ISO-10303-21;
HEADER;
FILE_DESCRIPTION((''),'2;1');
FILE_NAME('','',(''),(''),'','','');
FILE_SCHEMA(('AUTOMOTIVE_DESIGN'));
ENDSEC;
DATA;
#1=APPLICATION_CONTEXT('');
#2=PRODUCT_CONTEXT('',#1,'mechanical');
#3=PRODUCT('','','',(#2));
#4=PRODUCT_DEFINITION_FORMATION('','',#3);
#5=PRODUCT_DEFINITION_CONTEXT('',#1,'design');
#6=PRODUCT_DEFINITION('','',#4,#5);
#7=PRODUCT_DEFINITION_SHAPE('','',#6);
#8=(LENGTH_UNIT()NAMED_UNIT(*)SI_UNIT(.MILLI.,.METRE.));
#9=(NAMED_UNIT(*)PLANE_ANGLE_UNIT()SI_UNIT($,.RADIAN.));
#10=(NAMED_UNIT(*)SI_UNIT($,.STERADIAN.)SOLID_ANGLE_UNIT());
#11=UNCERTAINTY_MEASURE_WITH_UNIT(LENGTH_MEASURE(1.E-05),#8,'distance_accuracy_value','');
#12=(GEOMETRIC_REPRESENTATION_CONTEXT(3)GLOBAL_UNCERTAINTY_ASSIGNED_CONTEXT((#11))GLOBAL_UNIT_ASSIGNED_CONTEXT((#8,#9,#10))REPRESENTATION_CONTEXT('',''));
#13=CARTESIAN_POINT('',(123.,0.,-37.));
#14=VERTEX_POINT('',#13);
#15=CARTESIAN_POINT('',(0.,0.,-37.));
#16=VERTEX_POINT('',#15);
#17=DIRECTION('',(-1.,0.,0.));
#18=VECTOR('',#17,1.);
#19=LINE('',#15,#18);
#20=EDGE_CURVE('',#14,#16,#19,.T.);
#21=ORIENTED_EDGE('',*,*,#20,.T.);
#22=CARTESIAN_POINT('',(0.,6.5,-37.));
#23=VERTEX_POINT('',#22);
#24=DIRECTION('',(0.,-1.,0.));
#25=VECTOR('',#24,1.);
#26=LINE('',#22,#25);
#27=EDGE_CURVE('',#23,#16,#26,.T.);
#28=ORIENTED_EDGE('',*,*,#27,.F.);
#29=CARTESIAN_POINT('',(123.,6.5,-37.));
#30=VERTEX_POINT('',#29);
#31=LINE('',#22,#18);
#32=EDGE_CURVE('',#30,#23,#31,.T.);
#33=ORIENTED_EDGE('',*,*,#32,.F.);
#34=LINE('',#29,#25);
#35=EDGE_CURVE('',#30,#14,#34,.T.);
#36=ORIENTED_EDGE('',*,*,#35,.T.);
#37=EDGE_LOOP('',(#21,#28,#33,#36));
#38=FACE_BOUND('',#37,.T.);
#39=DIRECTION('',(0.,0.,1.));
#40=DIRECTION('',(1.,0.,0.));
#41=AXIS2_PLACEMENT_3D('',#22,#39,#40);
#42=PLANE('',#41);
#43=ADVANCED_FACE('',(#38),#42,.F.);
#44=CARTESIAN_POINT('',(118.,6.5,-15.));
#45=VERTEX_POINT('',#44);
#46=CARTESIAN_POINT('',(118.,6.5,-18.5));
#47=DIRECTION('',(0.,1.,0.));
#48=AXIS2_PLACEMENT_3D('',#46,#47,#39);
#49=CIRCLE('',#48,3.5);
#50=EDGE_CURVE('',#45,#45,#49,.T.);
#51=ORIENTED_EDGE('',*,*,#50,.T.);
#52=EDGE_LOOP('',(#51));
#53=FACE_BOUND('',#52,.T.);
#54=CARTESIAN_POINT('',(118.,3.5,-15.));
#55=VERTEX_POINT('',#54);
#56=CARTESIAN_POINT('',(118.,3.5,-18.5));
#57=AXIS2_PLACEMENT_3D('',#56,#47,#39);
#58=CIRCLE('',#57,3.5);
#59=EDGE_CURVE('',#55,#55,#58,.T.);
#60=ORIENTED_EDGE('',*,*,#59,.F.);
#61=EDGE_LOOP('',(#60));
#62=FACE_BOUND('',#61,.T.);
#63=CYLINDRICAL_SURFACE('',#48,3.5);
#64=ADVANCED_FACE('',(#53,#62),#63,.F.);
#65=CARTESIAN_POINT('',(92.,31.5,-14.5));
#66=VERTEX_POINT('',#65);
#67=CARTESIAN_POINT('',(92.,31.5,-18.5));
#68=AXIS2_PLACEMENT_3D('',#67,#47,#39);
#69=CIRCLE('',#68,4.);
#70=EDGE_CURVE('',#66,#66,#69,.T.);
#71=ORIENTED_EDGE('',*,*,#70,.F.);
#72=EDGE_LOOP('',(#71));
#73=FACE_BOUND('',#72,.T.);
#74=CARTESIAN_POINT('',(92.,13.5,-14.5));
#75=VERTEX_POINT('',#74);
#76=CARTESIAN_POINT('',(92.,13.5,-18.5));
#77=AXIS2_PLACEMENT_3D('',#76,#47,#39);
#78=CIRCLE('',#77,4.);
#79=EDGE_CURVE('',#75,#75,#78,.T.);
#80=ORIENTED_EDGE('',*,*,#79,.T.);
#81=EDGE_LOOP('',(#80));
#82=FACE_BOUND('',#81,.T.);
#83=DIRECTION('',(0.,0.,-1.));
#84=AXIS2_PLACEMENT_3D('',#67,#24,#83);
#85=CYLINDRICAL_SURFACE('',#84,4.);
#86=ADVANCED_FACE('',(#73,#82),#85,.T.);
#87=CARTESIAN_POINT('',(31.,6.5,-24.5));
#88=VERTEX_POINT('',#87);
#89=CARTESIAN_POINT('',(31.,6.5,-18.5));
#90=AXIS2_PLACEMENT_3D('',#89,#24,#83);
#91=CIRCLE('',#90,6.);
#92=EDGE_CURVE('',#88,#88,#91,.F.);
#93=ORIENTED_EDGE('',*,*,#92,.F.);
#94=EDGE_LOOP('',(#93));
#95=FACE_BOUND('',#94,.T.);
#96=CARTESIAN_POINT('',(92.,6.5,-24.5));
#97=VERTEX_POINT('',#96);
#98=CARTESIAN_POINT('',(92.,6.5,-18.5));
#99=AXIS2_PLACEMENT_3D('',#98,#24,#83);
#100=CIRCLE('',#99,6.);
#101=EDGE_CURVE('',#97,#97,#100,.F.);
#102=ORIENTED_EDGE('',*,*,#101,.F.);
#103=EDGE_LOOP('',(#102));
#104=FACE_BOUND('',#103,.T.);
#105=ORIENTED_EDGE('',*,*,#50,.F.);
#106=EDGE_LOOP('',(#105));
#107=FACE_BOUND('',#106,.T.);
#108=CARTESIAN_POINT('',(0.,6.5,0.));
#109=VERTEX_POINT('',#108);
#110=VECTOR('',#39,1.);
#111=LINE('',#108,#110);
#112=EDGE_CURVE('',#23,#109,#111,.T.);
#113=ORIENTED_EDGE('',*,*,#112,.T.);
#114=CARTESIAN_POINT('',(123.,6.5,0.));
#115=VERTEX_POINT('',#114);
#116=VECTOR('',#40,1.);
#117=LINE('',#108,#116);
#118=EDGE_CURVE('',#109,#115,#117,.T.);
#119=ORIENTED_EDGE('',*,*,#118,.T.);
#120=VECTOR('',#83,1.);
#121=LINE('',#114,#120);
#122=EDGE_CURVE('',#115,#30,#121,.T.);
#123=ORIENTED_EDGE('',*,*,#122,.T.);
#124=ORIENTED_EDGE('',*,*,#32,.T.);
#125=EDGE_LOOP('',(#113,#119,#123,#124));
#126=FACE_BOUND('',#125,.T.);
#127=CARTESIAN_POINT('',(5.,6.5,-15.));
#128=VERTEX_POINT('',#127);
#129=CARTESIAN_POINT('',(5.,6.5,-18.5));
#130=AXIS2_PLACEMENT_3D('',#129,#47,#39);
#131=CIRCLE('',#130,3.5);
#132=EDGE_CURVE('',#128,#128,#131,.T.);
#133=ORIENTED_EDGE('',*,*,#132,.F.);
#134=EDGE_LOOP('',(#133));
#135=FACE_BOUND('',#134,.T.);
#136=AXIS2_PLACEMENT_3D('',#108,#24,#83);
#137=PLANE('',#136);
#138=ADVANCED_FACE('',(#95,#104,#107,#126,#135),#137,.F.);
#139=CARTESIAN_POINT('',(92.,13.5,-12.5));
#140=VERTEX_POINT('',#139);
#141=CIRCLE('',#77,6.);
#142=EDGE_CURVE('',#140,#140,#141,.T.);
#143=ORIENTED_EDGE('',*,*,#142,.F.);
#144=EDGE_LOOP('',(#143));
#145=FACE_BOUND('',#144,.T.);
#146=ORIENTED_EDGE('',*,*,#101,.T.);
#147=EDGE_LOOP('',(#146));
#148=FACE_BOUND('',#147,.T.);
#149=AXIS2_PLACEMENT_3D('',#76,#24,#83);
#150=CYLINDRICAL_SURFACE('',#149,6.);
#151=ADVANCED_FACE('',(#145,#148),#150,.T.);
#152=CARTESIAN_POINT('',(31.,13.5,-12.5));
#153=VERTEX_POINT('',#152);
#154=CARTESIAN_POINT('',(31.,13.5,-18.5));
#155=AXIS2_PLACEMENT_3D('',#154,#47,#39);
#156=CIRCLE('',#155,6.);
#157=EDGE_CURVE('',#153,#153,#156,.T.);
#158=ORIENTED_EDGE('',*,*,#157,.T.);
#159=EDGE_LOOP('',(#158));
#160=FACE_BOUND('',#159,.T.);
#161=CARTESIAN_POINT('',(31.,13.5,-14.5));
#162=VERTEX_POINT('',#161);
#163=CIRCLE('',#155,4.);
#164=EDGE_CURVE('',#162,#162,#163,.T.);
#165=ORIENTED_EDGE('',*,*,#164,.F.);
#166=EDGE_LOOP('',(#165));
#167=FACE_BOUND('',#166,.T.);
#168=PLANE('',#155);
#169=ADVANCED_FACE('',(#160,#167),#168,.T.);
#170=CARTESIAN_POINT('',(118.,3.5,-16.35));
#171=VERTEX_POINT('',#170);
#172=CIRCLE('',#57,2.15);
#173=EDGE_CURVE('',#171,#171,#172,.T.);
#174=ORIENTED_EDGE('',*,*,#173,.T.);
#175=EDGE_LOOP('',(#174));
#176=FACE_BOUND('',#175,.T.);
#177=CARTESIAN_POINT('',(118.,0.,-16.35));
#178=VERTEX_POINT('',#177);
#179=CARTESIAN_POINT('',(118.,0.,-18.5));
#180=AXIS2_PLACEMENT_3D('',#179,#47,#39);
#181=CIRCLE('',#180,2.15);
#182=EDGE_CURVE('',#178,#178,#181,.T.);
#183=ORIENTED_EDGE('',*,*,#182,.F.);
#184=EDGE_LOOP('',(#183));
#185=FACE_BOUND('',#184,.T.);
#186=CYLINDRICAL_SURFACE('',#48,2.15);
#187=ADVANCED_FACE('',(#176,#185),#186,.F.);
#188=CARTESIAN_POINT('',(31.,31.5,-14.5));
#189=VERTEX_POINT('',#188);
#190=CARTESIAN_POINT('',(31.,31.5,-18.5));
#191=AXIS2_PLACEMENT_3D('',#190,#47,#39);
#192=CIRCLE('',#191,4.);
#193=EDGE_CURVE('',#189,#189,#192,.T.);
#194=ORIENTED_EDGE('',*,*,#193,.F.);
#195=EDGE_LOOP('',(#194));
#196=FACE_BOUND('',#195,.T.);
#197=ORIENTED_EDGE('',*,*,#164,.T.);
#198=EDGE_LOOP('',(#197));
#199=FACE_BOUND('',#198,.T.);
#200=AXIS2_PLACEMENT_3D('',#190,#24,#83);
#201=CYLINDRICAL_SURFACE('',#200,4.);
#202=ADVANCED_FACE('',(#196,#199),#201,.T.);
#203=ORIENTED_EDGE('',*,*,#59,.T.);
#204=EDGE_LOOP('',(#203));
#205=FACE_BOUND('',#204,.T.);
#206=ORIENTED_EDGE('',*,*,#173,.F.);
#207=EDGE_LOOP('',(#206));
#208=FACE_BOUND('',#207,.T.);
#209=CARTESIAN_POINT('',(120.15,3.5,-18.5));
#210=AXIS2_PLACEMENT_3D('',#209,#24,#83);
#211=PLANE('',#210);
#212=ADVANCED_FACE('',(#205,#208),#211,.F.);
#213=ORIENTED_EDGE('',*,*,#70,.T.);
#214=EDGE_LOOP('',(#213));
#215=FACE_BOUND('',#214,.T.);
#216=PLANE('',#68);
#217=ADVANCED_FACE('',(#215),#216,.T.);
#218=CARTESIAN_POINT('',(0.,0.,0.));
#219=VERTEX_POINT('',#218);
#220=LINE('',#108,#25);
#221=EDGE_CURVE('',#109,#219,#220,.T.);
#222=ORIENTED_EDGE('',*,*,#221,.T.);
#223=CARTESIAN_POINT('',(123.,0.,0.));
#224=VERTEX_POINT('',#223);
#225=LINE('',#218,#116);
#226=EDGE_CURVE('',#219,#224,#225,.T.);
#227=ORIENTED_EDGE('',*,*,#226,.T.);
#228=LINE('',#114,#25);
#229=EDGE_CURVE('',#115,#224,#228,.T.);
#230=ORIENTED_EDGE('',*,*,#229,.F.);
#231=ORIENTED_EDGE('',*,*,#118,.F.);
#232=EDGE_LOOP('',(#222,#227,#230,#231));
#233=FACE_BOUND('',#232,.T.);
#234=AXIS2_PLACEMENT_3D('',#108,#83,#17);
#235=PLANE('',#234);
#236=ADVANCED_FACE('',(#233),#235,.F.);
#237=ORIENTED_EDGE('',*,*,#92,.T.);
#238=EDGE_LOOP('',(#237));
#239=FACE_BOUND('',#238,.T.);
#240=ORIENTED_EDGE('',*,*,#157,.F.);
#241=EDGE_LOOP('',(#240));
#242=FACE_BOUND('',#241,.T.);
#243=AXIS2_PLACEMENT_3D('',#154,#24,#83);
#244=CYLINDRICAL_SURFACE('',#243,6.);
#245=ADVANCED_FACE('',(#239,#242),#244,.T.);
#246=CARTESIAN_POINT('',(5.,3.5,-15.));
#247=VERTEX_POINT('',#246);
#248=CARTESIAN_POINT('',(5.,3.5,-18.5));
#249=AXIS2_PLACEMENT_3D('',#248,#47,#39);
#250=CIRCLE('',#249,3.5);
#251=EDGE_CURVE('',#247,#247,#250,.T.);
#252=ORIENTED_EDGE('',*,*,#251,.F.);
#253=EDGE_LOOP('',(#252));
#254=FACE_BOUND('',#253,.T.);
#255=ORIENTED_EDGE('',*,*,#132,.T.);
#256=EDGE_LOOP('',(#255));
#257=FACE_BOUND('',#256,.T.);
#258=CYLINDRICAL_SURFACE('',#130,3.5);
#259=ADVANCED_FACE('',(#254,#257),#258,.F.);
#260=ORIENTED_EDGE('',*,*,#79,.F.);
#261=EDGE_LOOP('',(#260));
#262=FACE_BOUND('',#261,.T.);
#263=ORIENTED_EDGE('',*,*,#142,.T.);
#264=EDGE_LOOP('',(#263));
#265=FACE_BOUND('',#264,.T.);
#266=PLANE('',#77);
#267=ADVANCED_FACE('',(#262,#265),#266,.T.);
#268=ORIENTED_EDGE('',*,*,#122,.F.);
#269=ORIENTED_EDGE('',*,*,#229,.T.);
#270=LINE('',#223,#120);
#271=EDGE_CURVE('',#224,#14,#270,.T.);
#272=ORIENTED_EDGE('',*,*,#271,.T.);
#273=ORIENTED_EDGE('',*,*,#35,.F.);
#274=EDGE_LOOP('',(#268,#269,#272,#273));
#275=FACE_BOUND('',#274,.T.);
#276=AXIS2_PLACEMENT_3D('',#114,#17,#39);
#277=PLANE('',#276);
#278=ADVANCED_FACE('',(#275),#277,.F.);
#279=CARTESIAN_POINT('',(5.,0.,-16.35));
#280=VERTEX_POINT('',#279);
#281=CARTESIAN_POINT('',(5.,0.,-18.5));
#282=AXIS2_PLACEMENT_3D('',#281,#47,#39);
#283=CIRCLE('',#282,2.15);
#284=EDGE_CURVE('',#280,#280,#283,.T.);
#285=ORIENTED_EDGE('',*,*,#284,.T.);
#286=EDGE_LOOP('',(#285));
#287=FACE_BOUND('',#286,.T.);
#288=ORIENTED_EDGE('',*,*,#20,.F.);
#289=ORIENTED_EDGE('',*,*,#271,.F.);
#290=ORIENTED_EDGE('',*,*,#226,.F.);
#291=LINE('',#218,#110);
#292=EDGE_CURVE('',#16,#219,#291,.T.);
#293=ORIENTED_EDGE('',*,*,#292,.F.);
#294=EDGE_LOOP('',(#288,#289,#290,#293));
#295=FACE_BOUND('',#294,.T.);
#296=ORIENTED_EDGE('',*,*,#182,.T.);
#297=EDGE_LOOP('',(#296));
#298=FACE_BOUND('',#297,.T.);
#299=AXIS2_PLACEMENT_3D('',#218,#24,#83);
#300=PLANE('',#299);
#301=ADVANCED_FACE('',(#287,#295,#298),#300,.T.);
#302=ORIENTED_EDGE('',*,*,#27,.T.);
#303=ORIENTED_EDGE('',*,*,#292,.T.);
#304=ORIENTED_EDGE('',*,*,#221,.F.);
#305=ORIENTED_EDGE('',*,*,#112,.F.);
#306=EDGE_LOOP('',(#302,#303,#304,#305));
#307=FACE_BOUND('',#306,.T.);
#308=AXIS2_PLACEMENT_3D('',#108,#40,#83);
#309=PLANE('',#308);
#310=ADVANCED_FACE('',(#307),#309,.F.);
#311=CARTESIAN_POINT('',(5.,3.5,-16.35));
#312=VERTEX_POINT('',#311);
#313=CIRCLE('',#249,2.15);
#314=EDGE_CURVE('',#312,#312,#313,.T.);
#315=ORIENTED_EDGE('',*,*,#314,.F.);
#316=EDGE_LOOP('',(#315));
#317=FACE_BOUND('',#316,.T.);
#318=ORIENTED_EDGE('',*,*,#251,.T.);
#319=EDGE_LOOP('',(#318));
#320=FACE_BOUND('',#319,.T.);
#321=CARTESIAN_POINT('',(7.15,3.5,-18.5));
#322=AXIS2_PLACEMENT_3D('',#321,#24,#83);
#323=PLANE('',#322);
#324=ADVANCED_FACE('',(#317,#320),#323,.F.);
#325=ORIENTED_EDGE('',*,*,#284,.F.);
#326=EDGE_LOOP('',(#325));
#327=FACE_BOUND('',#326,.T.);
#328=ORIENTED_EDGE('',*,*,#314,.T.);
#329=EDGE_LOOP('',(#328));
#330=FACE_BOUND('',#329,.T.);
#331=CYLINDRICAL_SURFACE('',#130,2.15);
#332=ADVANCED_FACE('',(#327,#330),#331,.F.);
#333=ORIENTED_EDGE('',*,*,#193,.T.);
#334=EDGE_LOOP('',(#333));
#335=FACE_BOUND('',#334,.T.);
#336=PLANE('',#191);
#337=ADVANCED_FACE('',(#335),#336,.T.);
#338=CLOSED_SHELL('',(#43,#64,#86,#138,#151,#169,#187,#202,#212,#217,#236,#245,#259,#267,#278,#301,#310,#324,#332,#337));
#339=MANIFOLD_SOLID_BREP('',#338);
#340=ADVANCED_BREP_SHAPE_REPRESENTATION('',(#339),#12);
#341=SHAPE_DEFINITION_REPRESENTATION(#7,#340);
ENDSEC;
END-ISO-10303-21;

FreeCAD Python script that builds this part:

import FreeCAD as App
import Part
import Sketcher
from FreeCAD import Vector
Q = App.Units.Quantity

doc = App.newDocument("Part")
body = doc.addObject("PartDesign::Body", "Body")

sketch1 = body.newObject("Sketcher::SketchObject", "Sketch")
sketch1.AttachmentSupport = (doc.getObject("XZ_Plane"), [""])
sketch1.MapMode = "FlatFace"
sketch1.addGeometry([
    Part.LineSegment(Vector(0, -37, 0), Vector(0, 0, 0)),
    Part.LineSegment(Vector(0, 0, 0), Vector(123, 0, 0)),
    Part.LineSegment(Vector(123, 0, 0), Vector(123, -37, 0)),
    Part.LineSegment(Vector(123, -37, 0), Vector(0, -37, 0)),
], False)
sketch1.addConstraint([
    Sketcher.Constraint("Coincident", 0, 2, 1, 1),
    Sketcher.Constraint("Coincident", 1, 2, 2, 1),
    Sketcher.Constraint("Coincident", 2, 2, 3, 1),
    Sketcher.Constraint("Coincident", 3, 2, 0, 1),
    Sketcher.Constraint("Vertical", 0),
    Sketcher.Constraint("Horizontal", 1),
    Sketcher.Constraint("Vertical", 2),
    Sketcher.Constraint("Horizontal", 3),
    Sketcher.Constraint("Coincident", 0, 2, -1, 1),
    Sketcher.Constraint("DistanceX", 1, 1, 1, 2, Q("123 mm")),
    Sketcher.Constraint("DistanceY", 0, 1, 0, 2, Q("37 mm")),
])
pad1 = body.newObject("PartDesign::Pad", "Pad")
pad1.Profile = sketch1
pad1.Length = 6.5
pad1.Reversed = True

sketch2 = body.newObject("Sketcher::SketchObject", "Sketch001")
sketch2.AttachmentSupport = (doc.getObject("XZ_Plane"), [""])
sketch2.MapMode = "FlatFace"
sketch2.AttachmentOffset = App.Placement(Vector(0, 0, -6.5), App.Rotation())
sketch2.addGeometry([
    Part.Circle(Vector(5, -18.5, 0), Vector(0, 0, 1), 2.1),
    Part.Circle(Vector(118, -18.5, 0), Vector(0, 0, 1), 2.1),
], False)
sketch2.addConstraint([
    Sketcher.Constraint("Equal", 0, 1),
    Sketcher.Constraint("Horizontal", 0, 3, 1, 3),
    Sketcher.Constraint("Diameter", 0, Q("4.3 mm")),
    Sketcher.Constraint("DistanceX", -1, 1, 0, 3, Q("5 mm")),
    Sketcher.Constraint("DistanceX", -1, 1, 1, 3, Q("118 mm")),
    Sketcher.Constraint("DistanceY", 0, 3, -1, 1, Q("18.5 mm")),
])
doc.recompute()
hole = body.newObject("PartDesign::Hole", "Hole")
hole.Profile = sketch2
hole.ThreadType = "None"
hole.Diameter = 4.3
hole.DepthType = "ThroughAll"
hole.HoleCutType = "Counterbore"
hole.HoleCutDiameter = 7
hole.HoleCutDepth = 3
hole.Reversed = True

sketch3 = body.newObject("Sketcher::SketchObject", "Sketch002")
sketch3.AttachmentSupport = (doc.getObject("XZ_Plane"), [""])
sketch3.MapMode = "FlatFace"
sketch3.AttachmentOffset = App.Placement(Vector(0, 0, -6.5), App.Rotation())
sketch3.addGeometry([
    Part.Circle(Vector(31, -18.5, 0), Vector(0, 0, 1), 4),
    Part.Circle(Vector(92, -18.5, 0), Vector(0, 0, 1), 4),
], False)
sketch3.addConstraint([
    Sketcher.Constraint("Equal", 0, 1),
    Sketcher.Constraint("Horizontal", 0, 3, 1, 3),
    Sketcher.Constraint("Diameter", 0, Q("8 mm")),
    Sketcher.Constraint("DistanceX", -1, 1, 0, 3, Q("31 mm")),
    Sketcher.Constraint("DistanceX", -1, 1, 1, 3, Q("92 mm")),
    Sketcher.Constraint("DistanceY", 0, 3, -1, 1, Q("18.5 mm")),
])
pad2 = body.newObject("PartDesign::Pad", "Pad001")
pad2.Profile = sketch3
pad2.Length = 25
pad2.Reversed = True

sketch4 = body.newObject("Sketcher::SketchObject", "Sketch003")
sketch4.AttachmentSupport = (doc.getObject("XZ_Plane"), [""])
sketch4.MapMode = "FlatFace"
sketch4.AttachmentOffset = App.Placement(Vector(0, 0, -6.5), App.Rotation())
sketch4.addGeometry([
    Part.Circle(Vector(31, -18, 0), Vector(0, 0, 1), 6),
    Part.Circle(Vector(92, -18, 0), Vector(0, 0, 1), 6),
], False)
sketch4.addConstraint([
    Sketcher.Constraint("Equal", 0, 1),
    Sketcher.Constraint("Horizontal", 0, 3, 1, 3),
    Sketcher.Constraint("Diameter", 0, Q("12 mm")),
    Sketcher.Constraint("DistanceX", -1, 1, 0, 3, Q("31 mm")),
    Sketcher.Constraint("DistanceX", -1, 1, 1, 3, Q("92 mm")),
    Sketcher.Constraint("DistanceY", 0, 3, -1, 1, Q("18.5 mm")),
])
pad3 = body.newObject("PartDesign::Pad", "Pad002")
pad3.Profile = sketch4
pad3.Length = 7
pad3.Reversed = True

doc.recompute()
